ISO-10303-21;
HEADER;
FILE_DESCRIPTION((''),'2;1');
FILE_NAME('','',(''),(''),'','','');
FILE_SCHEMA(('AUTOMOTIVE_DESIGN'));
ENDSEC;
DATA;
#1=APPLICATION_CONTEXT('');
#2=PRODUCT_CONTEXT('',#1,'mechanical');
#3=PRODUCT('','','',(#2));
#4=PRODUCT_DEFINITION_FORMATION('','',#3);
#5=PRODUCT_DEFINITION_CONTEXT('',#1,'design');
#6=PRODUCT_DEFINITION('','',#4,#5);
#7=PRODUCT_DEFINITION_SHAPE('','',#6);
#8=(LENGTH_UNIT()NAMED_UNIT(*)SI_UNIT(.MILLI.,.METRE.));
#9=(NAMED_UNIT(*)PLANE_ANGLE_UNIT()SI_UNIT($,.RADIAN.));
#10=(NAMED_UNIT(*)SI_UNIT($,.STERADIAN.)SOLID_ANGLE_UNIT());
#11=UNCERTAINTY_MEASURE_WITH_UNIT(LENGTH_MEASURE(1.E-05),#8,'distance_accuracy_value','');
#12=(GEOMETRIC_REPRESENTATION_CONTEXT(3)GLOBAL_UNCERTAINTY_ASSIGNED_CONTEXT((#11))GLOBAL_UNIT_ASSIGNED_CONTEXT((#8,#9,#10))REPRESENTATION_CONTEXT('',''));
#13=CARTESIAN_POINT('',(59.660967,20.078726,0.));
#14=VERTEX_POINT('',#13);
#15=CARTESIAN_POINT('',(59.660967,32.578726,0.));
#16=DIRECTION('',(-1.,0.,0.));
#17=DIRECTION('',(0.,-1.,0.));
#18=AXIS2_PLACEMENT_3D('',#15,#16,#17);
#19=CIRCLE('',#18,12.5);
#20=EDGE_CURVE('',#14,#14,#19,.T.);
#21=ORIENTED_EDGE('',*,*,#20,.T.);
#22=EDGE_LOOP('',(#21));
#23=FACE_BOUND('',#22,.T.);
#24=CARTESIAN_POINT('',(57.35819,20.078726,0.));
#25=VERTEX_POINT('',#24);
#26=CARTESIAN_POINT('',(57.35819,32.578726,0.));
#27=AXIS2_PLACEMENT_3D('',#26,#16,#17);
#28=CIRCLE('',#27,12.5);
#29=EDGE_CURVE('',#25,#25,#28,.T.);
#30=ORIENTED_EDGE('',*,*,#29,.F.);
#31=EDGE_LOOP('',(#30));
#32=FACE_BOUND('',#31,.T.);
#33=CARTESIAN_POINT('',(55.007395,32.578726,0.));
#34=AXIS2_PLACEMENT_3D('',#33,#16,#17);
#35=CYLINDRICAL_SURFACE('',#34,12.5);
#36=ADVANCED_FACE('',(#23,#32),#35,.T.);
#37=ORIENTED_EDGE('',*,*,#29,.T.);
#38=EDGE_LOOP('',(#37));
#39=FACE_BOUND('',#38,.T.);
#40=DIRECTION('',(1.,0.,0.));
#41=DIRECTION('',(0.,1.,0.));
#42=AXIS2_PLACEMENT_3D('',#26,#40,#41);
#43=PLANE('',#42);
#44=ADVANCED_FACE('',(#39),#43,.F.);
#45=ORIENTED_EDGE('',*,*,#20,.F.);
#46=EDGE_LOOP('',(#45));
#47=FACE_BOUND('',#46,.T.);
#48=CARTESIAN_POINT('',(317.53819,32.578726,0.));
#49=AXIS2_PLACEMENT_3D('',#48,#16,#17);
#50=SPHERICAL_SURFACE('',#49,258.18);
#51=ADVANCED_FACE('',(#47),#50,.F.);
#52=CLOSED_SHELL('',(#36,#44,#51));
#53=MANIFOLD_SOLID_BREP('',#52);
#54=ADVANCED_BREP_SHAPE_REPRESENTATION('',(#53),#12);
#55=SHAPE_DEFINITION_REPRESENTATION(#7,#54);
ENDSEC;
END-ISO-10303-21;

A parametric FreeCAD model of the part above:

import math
import FreeCAD as App
import Part
import Sketcher
Q = App.Units.Quantity

doc = App.newDocument("Part")
body = doc.addObject("PartDesign::Body", "Body")

# Sketch on XY plane
sketch1 = body.newObject("Sketcher::SketchObject", "Sketch")
sketch1.AttachmentSupport = (doc.getObject("XY_Plane"), [""])
sketch1.MapMode = "FlatFace"
sketch1.addGeometry(Part.LineSegment(App.Vector(57.4, 45.1, 0), App.Vector(57.4, 32.6, 0)), False)
sketch1.addGeometry(Part.LineSegment(App.Vector(57.4, 32.6, 0), App.Vector(59.4, 32.6, 0)), False)
sketch1.addGeometry(Part.ArcOfCircle(Part.Circle(App.Vector(317.5, 32.6, 0), App.Vector(0, 0, 1), 258.2), math.radians(177.22), math.radians(180)), False)
sketch1.addGeometry(Part.LineSegment(App.Vector(59.7, 45.1, 0), App.Vector(57.4, 45.1, 0)), False)
sketch1.addGeometry(Part.LineSegment(App.Vector(57.4, 32.6, 0), App.Vector(317.5, 32.6, 0)), True)  # axis
sketch1.addConstraint(Sketcher.Constraint("Coincident", 0, 2, 1, 1))
sketch1.addConstraint(Sketcher.Constraint("Coincident", 1, 2, 2, 2))
sketch1.addConstraint(Sketcher.Constraint("Coincident", 2, 1, 3, 1))
sketch1.addConstraint(Sketcher.Constraint("Coincident", 3, 2, 0, 1))
sketch1.addConstraint(Sketcher.Constraint("Vertical", 0))
sketch1.addConstraint(Sketcher.Constraint("Horizontal", 1))
sketch1.addConstraint(Sketcher.Constraint("Horizontal", 3))
sketch1.addConstraint(Sketcher.Constraint("Horizontal", 4))
sketch1.addConstraint(Sketcher.Constraint("Coincident", 4, 1, 0, 2))
sketch1.addConstraint(Sketcher.Constraint("Coincident", 4, 2, 2, 3))
sketch1.addConstraint(Sketcher.Constraint("DistanceX", 1, 1, 1, 2, Q("2 mm")))
sketch1.addConstraint(Sketcher.Constraint("Radius", 2, Q("258.179999 mm")))
sketch1.addConstraint(Sketcher.Constraint("DistanceY", 0, 2, 0, 1, Q("12.5 mm")))
sketch1.addConstraint(Sketcher.Constraint("DistanceX", -1, 1, 2, 3, Q("317.538189 mm")))
sketch1.addConstraint(Sketcher.Constraint("DistanceY", -1, 1, 2, 3, Q("32.578726 mm")))
revolution = body.newObject("PartDesign::Revolution", "Revolution")
revolution.Profile = sketch1
revolution.ReferenceAxis = (sketch1, ["Axis0"])
revolution.Angle = 360

doc.recompute()
